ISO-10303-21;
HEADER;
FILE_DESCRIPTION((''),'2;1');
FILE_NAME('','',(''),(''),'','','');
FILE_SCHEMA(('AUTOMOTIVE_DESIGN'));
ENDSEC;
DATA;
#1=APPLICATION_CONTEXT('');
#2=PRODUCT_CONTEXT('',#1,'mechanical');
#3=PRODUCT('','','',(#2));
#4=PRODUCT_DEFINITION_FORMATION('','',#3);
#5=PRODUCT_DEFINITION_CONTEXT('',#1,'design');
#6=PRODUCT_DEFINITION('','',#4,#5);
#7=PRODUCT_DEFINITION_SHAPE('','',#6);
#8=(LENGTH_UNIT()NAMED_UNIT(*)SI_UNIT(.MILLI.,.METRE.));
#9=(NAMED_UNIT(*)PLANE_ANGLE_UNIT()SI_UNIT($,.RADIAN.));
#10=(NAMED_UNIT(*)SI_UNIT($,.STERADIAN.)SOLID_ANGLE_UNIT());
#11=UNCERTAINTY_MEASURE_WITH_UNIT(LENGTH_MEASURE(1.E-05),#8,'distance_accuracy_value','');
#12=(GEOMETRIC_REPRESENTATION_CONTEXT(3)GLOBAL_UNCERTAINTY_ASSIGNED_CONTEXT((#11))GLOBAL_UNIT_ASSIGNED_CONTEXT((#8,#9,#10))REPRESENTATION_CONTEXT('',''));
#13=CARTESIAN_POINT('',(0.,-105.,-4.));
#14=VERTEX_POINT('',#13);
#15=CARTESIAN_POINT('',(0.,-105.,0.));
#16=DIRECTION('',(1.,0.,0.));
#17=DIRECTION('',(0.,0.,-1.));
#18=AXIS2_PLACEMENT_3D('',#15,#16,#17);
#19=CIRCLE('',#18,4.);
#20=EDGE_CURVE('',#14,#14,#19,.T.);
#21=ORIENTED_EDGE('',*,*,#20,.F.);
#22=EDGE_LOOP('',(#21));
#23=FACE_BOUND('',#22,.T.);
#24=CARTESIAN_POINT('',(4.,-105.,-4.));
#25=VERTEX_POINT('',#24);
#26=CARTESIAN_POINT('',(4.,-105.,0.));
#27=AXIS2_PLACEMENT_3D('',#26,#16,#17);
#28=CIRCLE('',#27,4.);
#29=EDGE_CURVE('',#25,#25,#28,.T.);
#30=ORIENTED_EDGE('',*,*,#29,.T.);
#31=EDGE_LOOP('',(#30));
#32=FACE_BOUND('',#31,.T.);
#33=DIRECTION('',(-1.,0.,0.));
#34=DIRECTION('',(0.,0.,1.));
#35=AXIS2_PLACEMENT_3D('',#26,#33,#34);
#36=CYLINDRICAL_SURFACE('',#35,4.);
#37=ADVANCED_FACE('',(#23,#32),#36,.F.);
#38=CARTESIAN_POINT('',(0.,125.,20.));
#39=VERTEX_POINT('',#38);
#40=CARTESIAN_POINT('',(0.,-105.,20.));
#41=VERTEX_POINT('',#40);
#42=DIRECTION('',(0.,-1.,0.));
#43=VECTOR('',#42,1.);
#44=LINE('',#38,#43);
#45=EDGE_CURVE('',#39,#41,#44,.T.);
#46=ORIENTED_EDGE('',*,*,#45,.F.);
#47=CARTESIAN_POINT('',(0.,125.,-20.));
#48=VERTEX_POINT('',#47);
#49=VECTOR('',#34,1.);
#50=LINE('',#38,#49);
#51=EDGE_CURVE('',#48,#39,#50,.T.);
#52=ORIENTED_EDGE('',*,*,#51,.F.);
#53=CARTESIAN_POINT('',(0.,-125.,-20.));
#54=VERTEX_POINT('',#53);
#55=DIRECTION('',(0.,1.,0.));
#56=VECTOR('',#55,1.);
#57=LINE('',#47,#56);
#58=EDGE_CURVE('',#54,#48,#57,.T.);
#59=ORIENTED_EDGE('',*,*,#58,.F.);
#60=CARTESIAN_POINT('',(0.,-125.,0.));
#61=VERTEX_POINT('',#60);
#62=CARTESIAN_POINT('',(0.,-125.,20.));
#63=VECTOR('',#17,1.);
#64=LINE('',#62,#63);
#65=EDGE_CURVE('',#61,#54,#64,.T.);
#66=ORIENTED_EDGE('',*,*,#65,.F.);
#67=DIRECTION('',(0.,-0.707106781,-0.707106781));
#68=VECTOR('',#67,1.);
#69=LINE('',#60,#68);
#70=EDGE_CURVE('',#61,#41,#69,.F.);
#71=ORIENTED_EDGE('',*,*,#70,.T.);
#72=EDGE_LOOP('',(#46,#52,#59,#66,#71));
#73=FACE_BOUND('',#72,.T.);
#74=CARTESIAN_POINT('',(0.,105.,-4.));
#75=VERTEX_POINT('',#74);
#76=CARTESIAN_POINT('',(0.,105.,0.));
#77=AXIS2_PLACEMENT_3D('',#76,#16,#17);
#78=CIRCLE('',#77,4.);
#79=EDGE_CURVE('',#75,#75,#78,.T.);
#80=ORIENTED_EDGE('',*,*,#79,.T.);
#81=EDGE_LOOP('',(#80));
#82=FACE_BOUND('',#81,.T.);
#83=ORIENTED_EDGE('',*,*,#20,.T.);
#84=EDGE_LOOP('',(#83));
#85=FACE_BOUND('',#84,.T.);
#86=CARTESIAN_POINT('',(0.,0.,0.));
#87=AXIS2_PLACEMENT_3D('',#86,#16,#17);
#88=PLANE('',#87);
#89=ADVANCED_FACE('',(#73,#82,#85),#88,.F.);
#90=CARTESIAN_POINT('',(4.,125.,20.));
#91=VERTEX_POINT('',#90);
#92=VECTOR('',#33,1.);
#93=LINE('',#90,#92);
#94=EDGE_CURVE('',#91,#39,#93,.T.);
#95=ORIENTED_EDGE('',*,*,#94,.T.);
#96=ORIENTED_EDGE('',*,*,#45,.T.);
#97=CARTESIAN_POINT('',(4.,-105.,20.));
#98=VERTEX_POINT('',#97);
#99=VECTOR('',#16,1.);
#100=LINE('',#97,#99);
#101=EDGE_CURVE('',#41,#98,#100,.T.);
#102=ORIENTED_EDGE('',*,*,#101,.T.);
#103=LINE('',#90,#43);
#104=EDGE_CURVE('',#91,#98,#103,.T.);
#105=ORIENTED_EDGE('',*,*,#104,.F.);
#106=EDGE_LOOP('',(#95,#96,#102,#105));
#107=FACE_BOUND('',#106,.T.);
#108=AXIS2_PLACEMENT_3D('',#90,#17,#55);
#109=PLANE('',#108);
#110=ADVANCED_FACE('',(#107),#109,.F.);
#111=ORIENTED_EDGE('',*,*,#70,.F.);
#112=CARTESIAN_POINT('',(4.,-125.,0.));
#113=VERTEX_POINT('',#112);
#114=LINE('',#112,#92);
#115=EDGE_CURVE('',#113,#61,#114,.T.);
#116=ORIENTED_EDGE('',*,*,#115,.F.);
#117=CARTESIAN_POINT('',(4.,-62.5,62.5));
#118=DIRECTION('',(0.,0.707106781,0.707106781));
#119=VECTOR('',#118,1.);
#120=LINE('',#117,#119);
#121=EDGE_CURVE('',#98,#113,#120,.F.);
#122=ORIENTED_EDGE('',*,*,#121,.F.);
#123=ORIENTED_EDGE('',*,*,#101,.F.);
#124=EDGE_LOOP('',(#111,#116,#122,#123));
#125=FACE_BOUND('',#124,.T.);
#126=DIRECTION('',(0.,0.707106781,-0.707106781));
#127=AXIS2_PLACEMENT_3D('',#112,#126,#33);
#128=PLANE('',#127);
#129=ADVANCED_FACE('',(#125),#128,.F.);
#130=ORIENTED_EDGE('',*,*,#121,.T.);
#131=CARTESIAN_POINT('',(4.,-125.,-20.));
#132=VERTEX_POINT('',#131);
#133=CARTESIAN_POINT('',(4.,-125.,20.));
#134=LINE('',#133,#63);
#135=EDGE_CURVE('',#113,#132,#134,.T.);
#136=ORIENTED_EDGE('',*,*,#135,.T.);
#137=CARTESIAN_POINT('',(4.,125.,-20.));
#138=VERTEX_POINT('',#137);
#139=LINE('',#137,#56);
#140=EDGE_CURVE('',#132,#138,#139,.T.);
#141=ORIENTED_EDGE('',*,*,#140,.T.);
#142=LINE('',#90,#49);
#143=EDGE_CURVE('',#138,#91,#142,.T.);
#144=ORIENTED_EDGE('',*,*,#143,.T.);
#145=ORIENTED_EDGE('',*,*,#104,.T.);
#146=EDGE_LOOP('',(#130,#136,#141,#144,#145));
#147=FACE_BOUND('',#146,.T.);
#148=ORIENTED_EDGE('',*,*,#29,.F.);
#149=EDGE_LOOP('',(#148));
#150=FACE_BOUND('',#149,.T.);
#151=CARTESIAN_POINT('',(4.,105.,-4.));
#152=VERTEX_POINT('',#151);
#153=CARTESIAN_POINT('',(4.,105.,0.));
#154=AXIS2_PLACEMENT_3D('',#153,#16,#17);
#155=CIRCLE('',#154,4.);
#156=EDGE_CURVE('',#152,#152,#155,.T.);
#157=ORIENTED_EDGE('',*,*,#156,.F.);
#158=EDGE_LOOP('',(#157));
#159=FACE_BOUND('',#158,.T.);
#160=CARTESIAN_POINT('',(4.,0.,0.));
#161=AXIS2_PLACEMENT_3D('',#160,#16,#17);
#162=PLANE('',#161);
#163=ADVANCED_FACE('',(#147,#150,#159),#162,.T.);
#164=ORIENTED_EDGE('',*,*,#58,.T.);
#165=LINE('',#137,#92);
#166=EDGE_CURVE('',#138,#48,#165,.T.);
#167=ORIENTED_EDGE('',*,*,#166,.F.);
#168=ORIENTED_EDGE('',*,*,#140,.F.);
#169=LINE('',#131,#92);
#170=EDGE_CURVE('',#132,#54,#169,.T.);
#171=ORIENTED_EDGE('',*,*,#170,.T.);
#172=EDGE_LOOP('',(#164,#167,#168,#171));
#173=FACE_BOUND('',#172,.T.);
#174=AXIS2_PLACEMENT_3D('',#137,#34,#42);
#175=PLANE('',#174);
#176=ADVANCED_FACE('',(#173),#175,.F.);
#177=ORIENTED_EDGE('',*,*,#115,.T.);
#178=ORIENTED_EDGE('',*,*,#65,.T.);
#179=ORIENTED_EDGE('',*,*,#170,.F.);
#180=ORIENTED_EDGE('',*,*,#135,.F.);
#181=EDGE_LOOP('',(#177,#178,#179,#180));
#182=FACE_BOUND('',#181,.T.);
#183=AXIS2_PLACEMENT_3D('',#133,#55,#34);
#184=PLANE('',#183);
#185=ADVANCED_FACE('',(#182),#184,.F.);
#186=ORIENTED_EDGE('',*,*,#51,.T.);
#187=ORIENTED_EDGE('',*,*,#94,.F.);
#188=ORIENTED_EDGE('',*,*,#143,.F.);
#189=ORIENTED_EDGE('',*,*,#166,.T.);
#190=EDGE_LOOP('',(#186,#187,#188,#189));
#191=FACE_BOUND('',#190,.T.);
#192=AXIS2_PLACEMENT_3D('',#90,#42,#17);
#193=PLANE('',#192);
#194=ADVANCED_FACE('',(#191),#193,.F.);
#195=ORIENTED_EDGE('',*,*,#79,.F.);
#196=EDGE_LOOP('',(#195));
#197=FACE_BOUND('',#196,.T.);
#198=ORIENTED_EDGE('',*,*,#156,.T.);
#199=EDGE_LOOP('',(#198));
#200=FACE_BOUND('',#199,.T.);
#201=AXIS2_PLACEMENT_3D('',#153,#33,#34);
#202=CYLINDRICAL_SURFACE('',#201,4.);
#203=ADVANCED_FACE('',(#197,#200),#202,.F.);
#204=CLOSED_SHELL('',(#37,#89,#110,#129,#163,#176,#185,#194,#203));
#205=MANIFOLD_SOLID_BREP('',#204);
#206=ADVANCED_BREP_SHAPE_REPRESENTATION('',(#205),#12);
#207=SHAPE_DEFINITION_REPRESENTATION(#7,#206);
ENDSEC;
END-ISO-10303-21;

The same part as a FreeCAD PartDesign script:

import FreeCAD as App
import Part
import Sketcher
from FreeCAD import Vector


def edges_at(feature, points):
    """Names of the edges that pass closest to the given points."""
    edges = feature.Shape.Edges
    near = lambda p: min(range(len(edges)), key=lambda i: edges[i].distToShape(Part.Vertex(*p))[0])
    return sorted({f"Edge{near(p) + 1}" for p in points})

doc = App.newDocument("Part")
body = doc.addObject("PartDesign::Body", "Body")

# Sketch on YZ plane
sketch1 = doc.addObject("Sketcher::SketchObject", "Sketch")
body.addObject(sketch1)
sketch1.AttachmentSupport = (doc.YZ_Plane, [""])
sketch1.MapMode = "FlatFace"
sketch1.addGeometry([
    Part.LineSegment(Vector(125, 20, 0), Vector(-125, 20, 0)),  # 0
    Part.LineSegment(Vector(-125, 20, 0), Vector(-125, -20, 0)),  # 1
    Part.LineSegment(Vector(-125, -20, 0), Vector(125, -20, 0)),  # 2
    Part.LineSegment(Vector(125, -20, 0), Vector(125, 20, 0)),  # 3
    Part.Circle(Vector(-105, 0, 0), Vector(0, 0, 1), 4),  # 4
    Part.Circle(Vector(105, 0, 0), Vector(0, 0, 1), 4),  # 5
], False)
sketch1.addConstraint([
    Sketcher.Constraint("Coincident", 0, 2, 1, 1),
    Sketcher.Constraint("Coincident", 1, 2, 2, 1),
    Sketcher.Constraint("Coincident", 2, 2, 3, 1),
    Sketcher.Constraint("Coincident", 3, 2, 0, 1),
    Sketcher.Constraint("Horizontal", 0),
    Sketcher.Constraint("Vertical", 1),
    Sketcher.Constraint("Horizontal", 2),
    Sketcher.Constraint("Vertical", 3),
    Sketcher.Constraint("Equal", 4, 5),
    Sketcher.Constraint("Symmetric", 4, 3, 5, 3, -1, 1),
    Sketcher.Constraint("Symmetric", 0, 2, 2, 2, -1, 1),
    Sketcher.Constraint("PointOnObject", 4, 3, -1),
    Sketcher.Constraint("Diameter", 4, 8.0),
    Sketcher.Constraint("DistanceX", 0, 2, 0, 1, 250.0),
    Sketcher.Constraint("DistanceY", 1, 2, 1, 1, 40.0),
    Sketcher.Constraint("DistanceX", 4, 3, -1, 1, 105.0),
])
pad1 = doc.addObject("PartDesign::Pad", "Pad")
body.addObject(pad1)
pad1.Profile = sketch1
pad1.Length = 4
doc.recompute()

chamfer = doc.addObject("PartDesign::Chamfer", "Chamfer")
body.addObject(chamfer)
chamfer.Base = (pad1, edges_at(pad1, [(2, -125, 20)]))
chamfer.Size = 20

doc.recompute()
